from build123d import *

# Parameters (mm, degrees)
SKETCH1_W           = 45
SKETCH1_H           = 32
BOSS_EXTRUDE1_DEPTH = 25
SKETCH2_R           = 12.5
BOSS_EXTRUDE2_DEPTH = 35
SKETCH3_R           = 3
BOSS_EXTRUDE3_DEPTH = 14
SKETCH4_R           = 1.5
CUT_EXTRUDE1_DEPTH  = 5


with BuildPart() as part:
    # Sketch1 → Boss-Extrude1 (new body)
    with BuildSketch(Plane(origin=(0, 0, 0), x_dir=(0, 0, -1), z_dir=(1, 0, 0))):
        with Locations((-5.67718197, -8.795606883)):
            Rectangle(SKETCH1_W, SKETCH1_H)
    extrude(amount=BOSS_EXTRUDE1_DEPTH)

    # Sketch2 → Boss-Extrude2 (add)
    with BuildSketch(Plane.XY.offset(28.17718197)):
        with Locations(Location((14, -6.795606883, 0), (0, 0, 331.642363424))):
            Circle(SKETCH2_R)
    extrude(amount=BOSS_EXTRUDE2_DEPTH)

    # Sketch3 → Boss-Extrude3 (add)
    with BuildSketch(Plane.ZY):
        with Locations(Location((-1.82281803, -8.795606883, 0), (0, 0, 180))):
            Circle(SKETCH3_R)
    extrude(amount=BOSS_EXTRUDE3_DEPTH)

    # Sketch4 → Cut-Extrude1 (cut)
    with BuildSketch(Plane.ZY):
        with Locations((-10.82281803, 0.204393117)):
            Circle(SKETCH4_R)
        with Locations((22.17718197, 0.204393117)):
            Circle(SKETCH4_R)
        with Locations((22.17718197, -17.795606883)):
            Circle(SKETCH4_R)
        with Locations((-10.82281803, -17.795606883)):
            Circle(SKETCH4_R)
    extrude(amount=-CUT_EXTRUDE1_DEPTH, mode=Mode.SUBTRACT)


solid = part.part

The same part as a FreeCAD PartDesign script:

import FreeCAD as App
import Part
import Sketcher

V = App.Vector


def add_polygon(sketch, points):
    """Adds a closed chain of lines whose ends are joined by coincident constraints."""
    first, n = sketch.GeometryCount, len(points)
    for a, b in zip(points, points[1:] + points[:1]):
        sketch.addGeometry(Part.LineSegment(App.Vector(*a, 0), App.Vector(*b, 0)), False)
    for i in range(n):
        sketch.addConstraint(Sketcher.Constraint("Coincident", first + i, 2, first + (i + 1) % n, 1))

doc = App.newDocument("Part")
body = doc.addObject("PartDesign::Body", "Body")

# Sketch on YZ plane
sketch1 = doc.addObject("Sketcher::SketchObject", "Sketch")
body.addObject(sketch1)
sketch1.AttachmentSupport = (doc.YZ_Plane, [""])
sketch1.MapMode = "FlatFace"
add_polygon(sketch1, [(7, 28), (-25, 28), (-25, -17), (7, -17)])  # lines 0-3
sketch1.addConstraint(Sketcher.Constraint("Horizontal", 0))
sketch1.addConstraint(Sketcher.Constraint("Vertical", 1))
sketch1.addConstraint(Sketcher.Constraint("Horizontal", 2))
sketch1.addConstraint(Sketcher.Constraint("Vertical", 3))
sketch1.addConstraint(Sketcher.Constraint("DistanceX", 0, 2, 0, 1, 32.0))
sketch1.addConstraint(Sketcher.Constraint("DistanceY", 1, 2, 1, 1, 45.0))
sketch1.addConstraint(Sketcher.Constraint("DistanceY", -1, 1, 0, 2, 28.177182))
sketch1.addConstraint(Sketcher.Constraint("DistanceX", 0, 2, -1, 1, 24.795607))
pad1 = doc.addObject("PartDesign::Pad", "Pad")
body.addObject(pad1)
pad1.Profile = sketch1
pad1.Length = 25

# Sketch on XY plane
sketch2 = doc.addObject("Sketcher::SketchObject", "Sketch001")
body.addObject(sketch2)
sketch2.AttachmentSupport = (doc.XY_Plane, [""])
sketch2.MapMode = "FlatFace"
sketch2.AttachmentOffset = App.Placement(V(0, 0, 28.177182), App.Rotation())
sketch2.addGeometry(Part.Circle(V(14, -7, 0), V(0, 0, 1), 12), False)
sketch2.addConstraint(Sketcher.Constraint("Diameter", 0, 25.0))
sketch2.addConstraint(Sketcher.Constraint("DistanceX", -1, 1, 0, 3, 14.0))
sketch2.addConstraint(Sketcher.Constraint("DistanceY", 0, 3, -1, 1, 6.795607))
pad2 = doc.addObject("PartDesign::Pad", "Pad001")
body.addObject(pad2)
pad2.Profile = sketch2
pad2.Length = 35

# Sketch on YZ plane
sketch3 = doc.addObject("Sketcher::SketchObject", "Sketch002")
body.addObject(sketch3)
sketch3.AttachmentSupport = (doc.YZ_Plane, [""])
sketch3.MapMode = "FlatFace"
sketch3.addGeometry(Part.Circle(V(-8.8, -1.8, 0), V(0, 0, 1), 3), False)
sketch3.addConstraint(Sketcher.Constraint("Diameter", 0, 6.0))
sketch3.addConstraint(Sketcher.Constraint("DistanceY", 0, 3, -1, 1, 1.822818))
sketch3.addConstraint(Sketcher.Constraint("DistanceX", 0, 3, -1, 1, 8.795607))
pad3 = doc.addObject("PartDesign::Pad", "Pad002")
body.addObject(pad3)
pad3.Profile = sketch3
pad3.Length = 14
pad3.Reversed = True

# Sketch on YZ plane
sketch4 = doc.addObject("Sketcher::SketchObject", "Sketch003")
body.addObject(sketch4)
sketch4.AttachmentSupport = (doc.YZ_Plane, [""])
sketch4.MapMode = "FlatFace"
sketch4.addGeometry(Part.Circle(V(0.2, -10.8, 0), V(0, 0, 1), 1.5), False)
sketch4.addGeometry(Part.Circle(V(0.2, 22.2, 0), V(0, 0, 1), 1.5), False)
sketch4.addGeometry(Part.Circle(V(-17.8, 22.2, 0), V(0, 0, 1), 1.5), False)
sketch4.addGeometry(Part.Circle(V(-17.8, -10.8, 0), V(0, 0, 1), 1.5), False)
sketch4.addConstraint(Sketcher.Constraint("Equal", 0, 1))
sketch4.addConstraint(Sketcher.Constraint("Equal", 1, 2))
sketch4.addConstraint(Sketcher.Constraint("Equal", 2, 3))
sketch4.addConstraint(Sketcher.Constraint("Horizontal", 1, 3, 2, 3))
sketch4.addConstraint(Sketcher.Constraint("Horizontal", 0, 3, 3, 3))
sketch4.addConstraint(Sketcher.Constraint("Vertical", 0, 3, 1, 3))
sketch4.addConstraint(Sketcher.Constraint("Vertical", 2, 3, 3, 3))
sketch4.addConstraint(Sketcher.Constraint("Diameter", 0, 3.0))
sketch4.addConstraint(Sketcher.Constraint("DistanceY", 0, 3, 1, 3, 33.0))
sketch4.addConstraint(Sketcher.Constraint("DistanceX", 2, 3, 1, 3, 18.0))
sketch4.addConstraint(Sketcher.Constraint("DistanceY", 0, 3, -1, 1, 10.822818))
sketch4.addConstraint(Sketcher.Constraint("DistanceX", -1, 1, 0, 3, 0.204393))
pocket1 = doc.addObject("PartDesign::Pocket", "Pocket")
body.addObject(pocket1)
pocket1.Profile = sketch4
pocket1.Length = 5
pocket1.Reversed = True

doc.recompute()
